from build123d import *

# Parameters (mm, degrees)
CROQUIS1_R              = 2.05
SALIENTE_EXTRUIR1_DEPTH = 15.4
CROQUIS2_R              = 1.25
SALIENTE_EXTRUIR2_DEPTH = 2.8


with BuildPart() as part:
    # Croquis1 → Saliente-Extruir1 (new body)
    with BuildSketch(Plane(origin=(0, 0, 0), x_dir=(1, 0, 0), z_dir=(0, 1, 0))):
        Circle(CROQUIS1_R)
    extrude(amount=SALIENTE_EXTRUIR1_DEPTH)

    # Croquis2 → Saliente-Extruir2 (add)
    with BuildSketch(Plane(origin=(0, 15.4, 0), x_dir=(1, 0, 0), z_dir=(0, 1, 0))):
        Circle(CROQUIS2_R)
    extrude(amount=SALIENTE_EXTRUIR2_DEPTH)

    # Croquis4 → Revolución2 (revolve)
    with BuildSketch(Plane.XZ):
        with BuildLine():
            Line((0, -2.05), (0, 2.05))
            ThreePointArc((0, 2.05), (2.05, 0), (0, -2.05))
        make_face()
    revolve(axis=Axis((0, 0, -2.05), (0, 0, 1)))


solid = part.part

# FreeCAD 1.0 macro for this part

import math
import FreeCAD as App
import Part
import Sketcher

V = App.Vector
Q = App.Units.Quantity

doc = App.newDocument("Part")
body = doc.addObject("PartDesign::Body", "Body")

# Sketch on XZ plane
sketch1 = body.newObject("Sketcher::SketchObject", "Sketch")
sketch1.AttachmentSupport = (doc.getObject("XZ_Plane"), [""])
sketch1.MapMode = "FlatFace"
sketch1.addGeometry(Part.Circle(V(0, 0, 0), V(0, 0, 1), 2), False)
sketch1.addConstraint(Sketcher.Constraint("Coincident", 0, 3, -1, 1))
sketch1.addConstraint(Sketcher.Constraint("Diameter", 0, Q("4.1 mm")))
pad1 = body.newObject("PartDesign::Pad", "Pad")
pad1.Profile = sketch1
pad1.Length = 15.4
pad1.Reversed = True

# Sketch on XZ plane
sketch2 = body.newObject("Sketcher::SketchObject", "Sketch001")
sketch2.AttachmentSupport = (doc.getObject("XZ_Plane"), [""])
sketch2.MapMode = "FlatFace"
sketch2.AttachmentOffset = App.Placement(V(0, 0, -15.4), App.Rotation())
sketch2.addGeometry(Part.Circle(V(0, 0, 0), V(0, 0, 1), 1.2), False)
sketch2.addConstraint(Sketcher.Constraint("Coincident", 0, 3, -1, 1))
sketch2.addConstraint(Sketcher.Constraint("Diameter", 0, Q("2.5 mm")))
pad2 = body.newObject("PartDesign::Pad", "Pad001")
pad2.Profile = sketch2
pad2.Length = 2.8
pad2.Reversed = True

# Sketch on XZ plane
sketch3 = body.newObject("Sketcher::SketchObject", "Sketch002")
sketch3.AttachmentSupport = (doc.getObject("XZ_Plane"), [""])
sketch3.MapMode = "FlatFace"
sketch3.addGeometry(Part.LineSegment(V(0, 2, 0), V(0, -2, 0)), False)
sketch3.addGeometry(Part.ArcOfCircle(Part.Circle(V(0, 0, 0), V(0, 0, 1), 2), math.radians(-90), math.radians(90)), False)
sketch3.addConstraint(Sketcher.Constraint("Coincident", 0, 1, 1, 2))
sketch3.addConstraint(Sketcher.Constraint("Coincident", 1, 1, 0, 2))
sketch3.addConstraint(Sketcher.Constraint("Vertical", 0))
sketch3.addConstraint(Sketcher.Constraint("Coincident", 1, 3, -1, 1))
sketch3.addConstraint(Sketcher.Constraint("PointOnObject", 0, 1, -2))
sketch3.addConstraint(Sketcher.Constraint("Radius", 1, Q("2.05 mm")))
revolution = body.newObject("PartDesign::Revolution", "Revolution")
revolution.Profile = sketch3
revolution.ReferenceAxis = (sketch3, ["V_Axis"])
revolution.Angle = 360

doc.recompute()
